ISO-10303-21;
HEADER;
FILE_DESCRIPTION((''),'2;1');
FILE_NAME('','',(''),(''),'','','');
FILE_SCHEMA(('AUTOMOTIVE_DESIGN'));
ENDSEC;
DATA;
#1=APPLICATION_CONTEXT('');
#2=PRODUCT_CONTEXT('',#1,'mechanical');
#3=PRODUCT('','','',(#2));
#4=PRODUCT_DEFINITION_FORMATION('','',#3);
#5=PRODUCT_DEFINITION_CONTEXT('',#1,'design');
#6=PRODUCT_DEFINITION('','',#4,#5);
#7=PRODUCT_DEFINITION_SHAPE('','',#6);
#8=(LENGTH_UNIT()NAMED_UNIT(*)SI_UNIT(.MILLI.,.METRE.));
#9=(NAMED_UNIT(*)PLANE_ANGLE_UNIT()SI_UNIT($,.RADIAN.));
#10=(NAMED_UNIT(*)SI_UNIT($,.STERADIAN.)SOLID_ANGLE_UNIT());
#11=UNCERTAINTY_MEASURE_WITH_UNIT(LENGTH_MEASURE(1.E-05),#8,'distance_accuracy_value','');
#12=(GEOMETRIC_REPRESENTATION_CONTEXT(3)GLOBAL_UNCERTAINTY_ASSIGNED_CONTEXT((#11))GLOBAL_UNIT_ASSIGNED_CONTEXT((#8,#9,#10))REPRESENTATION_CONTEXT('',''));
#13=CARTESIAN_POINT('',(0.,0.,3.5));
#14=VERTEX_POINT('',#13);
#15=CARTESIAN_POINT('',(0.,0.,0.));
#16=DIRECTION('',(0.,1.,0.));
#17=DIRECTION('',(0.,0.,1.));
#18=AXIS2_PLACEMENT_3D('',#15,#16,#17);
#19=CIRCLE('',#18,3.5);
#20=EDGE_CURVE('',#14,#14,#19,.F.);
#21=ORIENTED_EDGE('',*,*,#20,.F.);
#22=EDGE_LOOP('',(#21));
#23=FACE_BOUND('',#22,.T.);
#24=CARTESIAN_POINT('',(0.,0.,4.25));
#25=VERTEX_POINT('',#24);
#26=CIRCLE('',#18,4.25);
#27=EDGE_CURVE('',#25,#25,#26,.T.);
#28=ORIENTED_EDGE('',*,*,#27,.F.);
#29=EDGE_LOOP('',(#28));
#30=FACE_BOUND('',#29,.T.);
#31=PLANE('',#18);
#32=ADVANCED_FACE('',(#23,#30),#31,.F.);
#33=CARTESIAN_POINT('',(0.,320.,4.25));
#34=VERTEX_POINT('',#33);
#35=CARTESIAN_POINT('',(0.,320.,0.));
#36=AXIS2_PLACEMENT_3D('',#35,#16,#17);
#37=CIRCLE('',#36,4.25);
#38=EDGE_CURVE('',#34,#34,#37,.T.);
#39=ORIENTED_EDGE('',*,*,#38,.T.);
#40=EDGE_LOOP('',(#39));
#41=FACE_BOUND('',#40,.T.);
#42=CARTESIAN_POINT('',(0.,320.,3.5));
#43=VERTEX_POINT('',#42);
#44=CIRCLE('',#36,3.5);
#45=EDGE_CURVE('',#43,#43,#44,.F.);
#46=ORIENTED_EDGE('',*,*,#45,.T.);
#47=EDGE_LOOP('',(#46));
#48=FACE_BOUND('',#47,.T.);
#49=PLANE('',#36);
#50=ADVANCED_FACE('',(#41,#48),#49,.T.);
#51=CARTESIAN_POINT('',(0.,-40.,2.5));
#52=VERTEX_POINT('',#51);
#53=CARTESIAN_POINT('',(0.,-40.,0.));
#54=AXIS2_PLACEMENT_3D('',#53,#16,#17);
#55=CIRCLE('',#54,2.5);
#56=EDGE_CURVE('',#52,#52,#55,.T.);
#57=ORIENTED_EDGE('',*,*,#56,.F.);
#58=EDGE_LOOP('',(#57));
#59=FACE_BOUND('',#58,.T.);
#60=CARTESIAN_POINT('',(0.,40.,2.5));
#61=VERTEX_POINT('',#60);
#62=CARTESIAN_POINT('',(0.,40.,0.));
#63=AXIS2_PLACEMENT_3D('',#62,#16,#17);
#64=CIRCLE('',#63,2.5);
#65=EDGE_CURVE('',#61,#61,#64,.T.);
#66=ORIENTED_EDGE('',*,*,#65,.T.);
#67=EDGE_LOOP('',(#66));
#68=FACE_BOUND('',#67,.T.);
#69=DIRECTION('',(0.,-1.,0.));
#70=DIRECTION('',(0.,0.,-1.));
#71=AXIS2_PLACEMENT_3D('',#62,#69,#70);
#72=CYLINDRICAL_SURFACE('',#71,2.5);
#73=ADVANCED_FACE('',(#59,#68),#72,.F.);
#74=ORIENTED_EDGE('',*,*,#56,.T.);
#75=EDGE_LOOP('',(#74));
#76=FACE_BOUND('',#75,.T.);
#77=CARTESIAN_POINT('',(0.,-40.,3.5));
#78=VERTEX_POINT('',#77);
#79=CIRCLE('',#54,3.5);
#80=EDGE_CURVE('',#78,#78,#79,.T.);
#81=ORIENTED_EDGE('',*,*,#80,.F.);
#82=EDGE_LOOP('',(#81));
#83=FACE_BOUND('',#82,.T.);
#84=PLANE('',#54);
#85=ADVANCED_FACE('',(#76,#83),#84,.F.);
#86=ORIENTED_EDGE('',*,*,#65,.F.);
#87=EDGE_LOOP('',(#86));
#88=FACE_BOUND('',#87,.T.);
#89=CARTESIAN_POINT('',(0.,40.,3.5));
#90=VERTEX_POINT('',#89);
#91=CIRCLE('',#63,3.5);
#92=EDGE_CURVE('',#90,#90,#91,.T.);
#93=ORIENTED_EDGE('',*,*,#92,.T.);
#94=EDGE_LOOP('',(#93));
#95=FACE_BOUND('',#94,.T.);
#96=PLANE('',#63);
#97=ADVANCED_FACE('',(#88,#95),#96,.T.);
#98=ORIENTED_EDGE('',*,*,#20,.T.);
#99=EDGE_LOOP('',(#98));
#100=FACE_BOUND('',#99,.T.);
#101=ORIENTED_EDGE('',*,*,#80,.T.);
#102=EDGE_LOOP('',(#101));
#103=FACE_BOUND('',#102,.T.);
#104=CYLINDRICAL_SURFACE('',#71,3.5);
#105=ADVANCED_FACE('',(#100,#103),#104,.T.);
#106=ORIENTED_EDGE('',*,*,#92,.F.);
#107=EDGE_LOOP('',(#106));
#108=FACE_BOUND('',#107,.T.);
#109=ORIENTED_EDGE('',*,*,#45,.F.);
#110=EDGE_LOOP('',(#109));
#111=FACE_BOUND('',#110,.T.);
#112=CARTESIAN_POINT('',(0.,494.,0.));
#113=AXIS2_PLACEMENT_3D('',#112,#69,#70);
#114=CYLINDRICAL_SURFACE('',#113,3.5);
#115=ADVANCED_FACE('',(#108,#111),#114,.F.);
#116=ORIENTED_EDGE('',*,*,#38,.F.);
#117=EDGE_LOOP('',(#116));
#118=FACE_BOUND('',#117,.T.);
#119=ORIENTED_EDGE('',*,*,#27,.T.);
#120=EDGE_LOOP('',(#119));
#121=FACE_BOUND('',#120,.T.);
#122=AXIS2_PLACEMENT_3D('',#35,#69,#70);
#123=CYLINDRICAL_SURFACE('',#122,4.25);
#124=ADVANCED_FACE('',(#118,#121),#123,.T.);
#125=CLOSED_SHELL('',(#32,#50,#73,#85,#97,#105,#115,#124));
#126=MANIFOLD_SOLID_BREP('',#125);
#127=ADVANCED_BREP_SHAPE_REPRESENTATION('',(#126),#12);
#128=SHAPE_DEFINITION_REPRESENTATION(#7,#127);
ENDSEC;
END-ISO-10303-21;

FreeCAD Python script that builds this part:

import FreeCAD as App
import Part
import Sketcher

doc = App.newDocument("Part")
body = doc.addObject("PartDesign::Body", "Body")

sketch1 = body.newObject("Sketcher::SketchObject", "Sketch")
sketch1.AttachmentSupport = (doc.getObject("XZ_Plane"), [""])
sketch1.MapMode = "FlatFace"
sketch1.addGeometry(Part.Circle(App.Vector(0, 0, 0), App.Vector(0, 0, 1), 4.25), False)
sketch1.addConstraint([
    Sketcher.Constraint("Coincident", 0, 3, -1, 1),
    Sketcher.Constraint("Diameter", 0, 8.5),
])
pad1 = body.newObject("PartDesign::Pad", "Pad")
pad1.Profile = sketch1
pad1.Length = 320
pad1.Reversed = True

sketch2 = body.newObject("Sketcher::SketchObject", "Sketch001")
sketch2.AttachmentSupport = (doc.getObject("XZ_Plane"), [""])
sketch2.MapMode = "FlatFace"
sketch2.addGeometry(Part.Circle(App.Vector(0, 0, 0), App.Vector(0, 0, 1), 3.5), False)
sketch2.addConstraint([
    Sketcher.Constraint("Coincident", 0, 3, -1, 1),
    Sketcher.Constraint("Diameter", 0, 7.0),
])
pocket1 = body.newObject("PartDesign::Pocket", "Pocket")
pocket1.Profile = sketch2
pocket1.Length = 494

sketch3 = body.newObject("Sketcher::SketchObject", "Sketch002")
sketch3.AttachmentSupport = (doc.getObject("XZ_Plane"), [""])
sketch3.MapMode = "FlatFace"
sketch3.addGeometry([
    Part.Circle(App.Vector(0, 0, 0), App.Vector(0, 0, 1), 3.5),
    Part.Circle(App.Vector(0, 0, 0), App.Vector(0, 0, 1), 2.5),
], False)
sketch3.addConstraint([
    Sketcher.Constraint("Coincident", 0, 3, -1, 1),
    Sketcher.Constraint("Coincident", 1, 3, -1, 1),
    Sketcher.Constraint("Diameter", 0, 7.0),
    Sketcher.Constraint("Diameter", 1, 5.0),
])
pad2 = body.newObject("PartDesign::Pad", "Pad001")
pad2.Profile = sketch3
pad2.Length = 80
pad2.Midplane = True

doc.recompute()
